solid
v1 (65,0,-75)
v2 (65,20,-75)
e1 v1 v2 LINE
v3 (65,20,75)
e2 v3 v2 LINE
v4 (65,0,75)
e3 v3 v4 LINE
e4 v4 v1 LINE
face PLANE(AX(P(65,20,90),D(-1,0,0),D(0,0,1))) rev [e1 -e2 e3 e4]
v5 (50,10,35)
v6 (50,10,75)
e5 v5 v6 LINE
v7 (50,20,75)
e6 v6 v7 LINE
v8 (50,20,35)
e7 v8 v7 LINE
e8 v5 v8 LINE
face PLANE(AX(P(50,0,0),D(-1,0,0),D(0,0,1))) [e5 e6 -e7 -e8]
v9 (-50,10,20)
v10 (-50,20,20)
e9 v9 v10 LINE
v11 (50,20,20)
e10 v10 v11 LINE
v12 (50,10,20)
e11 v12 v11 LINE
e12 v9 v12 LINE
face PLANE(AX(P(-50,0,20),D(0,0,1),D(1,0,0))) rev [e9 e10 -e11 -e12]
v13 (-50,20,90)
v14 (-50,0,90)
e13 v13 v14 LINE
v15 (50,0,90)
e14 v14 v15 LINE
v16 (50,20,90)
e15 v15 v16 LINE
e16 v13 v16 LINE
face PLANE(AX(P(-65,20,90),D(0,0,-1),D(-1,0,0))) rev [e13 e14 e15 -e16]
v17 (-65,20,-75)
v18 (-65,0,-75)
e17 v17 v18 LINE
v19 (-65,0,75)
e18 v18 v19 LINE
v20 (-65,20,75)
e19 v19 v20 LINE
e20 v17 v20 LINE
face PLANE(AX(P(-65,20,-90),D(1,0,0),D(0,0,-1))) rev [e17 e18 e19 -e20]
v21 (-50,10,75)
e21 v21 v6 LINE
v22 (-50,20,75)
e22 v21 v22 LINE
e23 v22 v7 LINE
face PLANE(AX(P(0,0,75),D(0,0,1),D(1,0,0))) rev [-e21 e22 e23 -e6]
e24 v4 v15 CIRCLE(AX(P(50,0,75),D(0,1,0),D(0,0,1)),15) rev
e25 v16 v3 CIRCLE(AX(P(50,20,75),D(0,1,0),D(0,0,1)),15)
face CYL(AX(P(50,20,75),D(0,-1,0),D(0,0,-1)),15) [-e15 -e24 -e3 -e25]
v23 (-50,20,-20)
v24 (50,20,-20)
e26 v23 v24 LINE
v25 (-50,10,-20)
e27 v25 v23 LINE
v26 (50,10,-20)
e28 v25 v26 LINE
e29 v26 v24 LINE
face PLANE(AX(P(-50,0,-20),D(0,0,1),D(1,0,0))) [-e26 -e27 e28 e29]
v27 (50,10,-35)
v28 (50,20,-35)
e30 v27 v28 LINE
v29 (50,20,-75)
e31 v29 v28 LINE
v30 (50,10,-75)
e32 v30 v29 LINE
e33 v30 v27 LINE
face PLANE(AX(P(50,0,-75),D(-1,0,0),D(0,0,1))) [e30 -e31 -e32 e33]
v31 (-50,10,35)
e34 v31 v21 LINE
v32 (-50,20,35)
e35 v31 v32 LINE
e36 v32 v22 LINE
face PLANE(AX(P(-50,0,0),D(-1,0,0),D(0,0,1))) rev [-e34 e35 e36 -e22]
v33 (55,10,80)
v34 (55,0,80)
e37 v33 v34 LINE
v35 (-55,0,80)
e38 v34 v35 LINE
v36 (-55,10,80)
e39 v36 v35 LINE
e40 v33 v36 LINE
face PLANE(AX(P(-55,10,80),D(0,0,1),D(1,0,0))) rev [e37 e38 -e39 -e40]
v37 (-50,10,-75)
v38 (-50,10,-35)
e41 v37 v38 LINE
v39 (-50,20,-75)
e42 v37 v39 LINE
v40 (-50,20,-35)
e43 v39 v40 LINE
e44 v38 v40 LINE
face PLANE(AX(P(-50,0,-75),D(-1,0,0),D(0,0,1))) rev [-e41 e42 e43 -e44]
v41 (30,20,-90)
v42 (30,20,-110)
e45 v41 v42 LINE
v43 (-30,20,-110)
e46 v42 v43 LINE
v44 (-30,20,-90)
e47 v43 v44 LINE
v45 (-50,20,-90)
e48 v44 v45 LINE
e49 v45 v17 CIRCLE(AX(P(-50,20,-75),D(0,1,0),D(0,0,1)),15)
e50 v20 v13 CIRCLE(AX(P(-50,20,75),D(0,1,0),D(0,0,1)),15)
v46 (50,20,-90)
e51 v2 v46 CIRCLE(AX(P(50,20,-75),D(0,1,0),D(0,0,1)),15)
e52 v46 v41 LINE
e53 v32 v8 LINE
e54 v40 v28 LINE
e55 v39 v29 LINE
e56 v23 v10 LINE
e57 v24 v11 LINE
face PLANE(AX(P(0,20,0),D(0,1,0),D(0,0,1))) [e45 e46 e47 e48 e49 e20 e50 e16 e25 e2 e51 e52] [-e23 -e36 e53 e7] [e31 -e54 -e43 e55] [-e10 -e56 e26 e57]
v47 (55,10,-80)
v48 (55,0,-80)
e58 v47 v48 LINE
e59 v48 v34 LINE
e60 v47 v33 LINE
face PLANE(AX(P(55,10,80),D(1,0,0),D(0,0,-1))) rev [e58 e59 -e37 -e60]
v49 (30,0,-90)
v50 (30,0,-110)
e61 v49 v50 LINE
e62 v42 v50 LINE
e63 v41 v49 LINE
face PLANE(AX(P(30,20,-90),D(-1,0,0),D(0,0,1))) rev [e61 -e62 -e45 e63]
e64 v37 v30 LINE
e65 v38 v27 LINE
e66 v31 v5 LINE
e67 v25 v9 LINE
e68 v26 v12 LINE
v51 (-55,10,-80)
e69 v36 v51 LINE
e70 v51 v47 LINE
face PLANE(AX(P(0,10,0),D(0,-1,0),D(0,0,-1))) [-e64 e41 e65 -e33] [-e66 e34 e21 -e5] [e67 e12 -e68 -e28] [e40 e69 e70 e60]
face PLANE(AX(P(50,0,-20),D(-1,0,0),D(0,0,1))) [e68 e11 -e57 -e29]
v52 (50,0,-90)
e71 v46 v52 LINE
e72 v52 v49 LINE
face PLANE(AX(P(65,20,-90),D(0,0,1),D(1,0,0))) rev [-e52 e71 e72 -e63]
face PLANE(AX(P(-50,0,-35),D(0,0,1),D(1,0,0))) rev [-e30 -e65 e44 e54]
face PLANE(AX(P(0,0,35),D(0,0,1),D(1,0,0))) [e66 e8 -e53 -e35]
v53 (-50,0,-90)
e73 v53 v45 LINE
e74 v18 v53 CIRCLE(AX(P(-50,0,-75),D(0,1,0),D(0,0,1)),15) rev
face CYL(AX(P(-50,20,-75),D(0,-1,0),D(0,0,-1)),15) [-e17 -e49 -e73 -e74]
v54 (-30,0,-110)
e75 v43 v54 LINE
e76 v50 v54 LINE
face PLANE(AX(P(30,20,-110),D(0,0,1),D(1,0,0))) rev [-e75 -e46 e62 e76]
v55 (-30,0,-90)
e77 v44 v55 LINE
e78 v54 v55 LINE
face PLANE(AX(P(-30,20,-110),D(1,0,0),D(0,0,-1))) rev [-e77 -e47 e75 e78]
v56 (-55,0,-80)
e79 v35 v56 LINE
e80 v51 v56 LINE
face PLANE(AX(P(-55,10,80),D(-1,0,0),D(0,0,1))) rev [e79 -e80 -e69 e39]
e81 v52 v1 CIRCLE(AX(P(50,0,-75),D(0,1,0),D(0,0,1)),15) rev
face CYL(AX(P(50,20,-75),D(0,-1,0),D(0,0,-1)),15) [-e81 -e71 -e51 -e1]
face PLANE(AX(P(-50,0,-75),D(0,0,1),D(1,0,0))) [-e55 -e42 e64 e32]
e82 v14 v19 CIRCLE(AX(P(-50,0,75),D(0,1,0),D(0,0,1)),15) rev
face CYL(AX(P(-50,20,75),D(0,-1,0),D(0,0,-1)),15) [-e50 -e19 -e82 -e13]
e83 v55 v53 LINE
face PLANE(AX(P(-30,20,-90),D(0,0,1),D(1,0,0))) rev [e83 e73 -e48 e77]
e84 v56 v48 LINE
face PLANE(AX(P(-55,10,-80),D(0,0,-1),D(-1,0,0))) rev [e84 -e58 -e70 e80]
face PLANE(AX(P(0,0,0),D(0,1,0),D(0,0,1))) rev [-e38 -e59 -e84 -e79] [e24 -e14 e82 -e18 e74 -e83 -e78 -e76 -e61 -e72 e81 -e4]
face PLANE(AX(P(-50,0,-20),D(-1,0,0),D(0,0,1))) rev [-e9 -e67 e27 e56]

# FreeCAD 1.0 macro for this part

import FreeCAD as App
import Part
import Sketcher
from FreeCAD import Vector
Q = App.Units.Quantity


def edges_at(feature, points):
    """Names of the edges that pass closest to the given points."""
    edges = feature.Shape.Edges
    near = lambda p: min(range(len(edges)), key=lambda i: edges[i].distToShape(Part.Vertex(*p))[0])
    return sorted({f"Edge{near(p) + 1}" for p in points})


def add_polygon(sketch, points):
    """Adds a closed chain of lines whose ends are joined by coincident constraints."""
    first, n = sketch.GeometryCount, len(points)
    for a, b in zip(points, points[1:] + points[:1]):
        sketch.addGeometry(Part.LineSegment(App.Vector(*a, 0), App.Vector(*b, 0)), False)
    for i in range(n):
        sketch.addConstraint(Sketcher.Constraint("Coincident", first + i, 2, first + (i + 1) % n, 1))

doc = App.newDocument("Part")
body = doc.addObject("PartDesign::Body", "Body")

sketch1 = doc.addObject("Sketcher::SketchObject", "Sketch")
body.addObject(sketch1)
sketch1.AttachmentSupport = (doc.XZ_Plane, [""])
sketch1.MapMode = "FlatFace"
add_polygon(sketch1, [(-65, -90), (-65, 90), (65, 90), (65, -90), (30, -90), (30, -110), (-30, -110), (-30, -90)])
sketch1.addConstraint([
    Sketcher.Constraint("Vertical", 0),
    Sketcher.Constraint("Horizontal", 1),
    Sketcher.Constraint("Vertical", 2),
    Sketcher.Constraint("Horizontal", 3),
    Sketcher.Constraint("Vertical", 4),
    Sketcher.Constraint("Horizontal", 5),
    Sketcher.Constraint("Vertical", 6),
    Sketcher.Constraint("Horizontal", 7),
    Sketcher.Constraint("Symmetric", 0, 2, 2, 2, -1, 1),
    Sketcher.Constraint("Symmetric", 3, 2, 6, 2, -2),
    Sketcher.Constraint("DistanceX", 1, 1, 1, 2, Q("130 mm")),
    Sketcher.Constraint("DistanceX", 3, 2, 3, 1, Q("35 mm")),
    Sketcher.Constraint("DistanceY", 0, 1, 0, 2, Q("180 mm")),
    Sketcher.Constraint("DistanceY", 4, 2, 4, 1, Q("20 mm")),
])
pad1 = doc.addObject("PartDesign::Pad", "Pad")
body.addObject(pad1)
pad1.Profile = sketch1
pad1.Length = 20
pad1.Reversed = True

sketch2 = doc.addObject("Sketcher::SketchObject", "Sketch001")
body.addObject(sketch2)
sketch2.AttachmentSupport = (doc.XZ_Plane, [""])
sketch2.MapMode = "FlatFace"
sketch2.AttachmentOffset = App.Placement(Vector(0, 0, -20), App.Rotation())
add_polygon(sketch2, [(-50, 35), (-50, 75), (50, 75), (50, 35)])
add_polygon(sketch2, [(-50, -75), (-50, -35), (50, -35), (50, -75)])
add_polygon(sketch2, [(-50, -20), (-50, 20), (50, 20), (50, -20)])
sketch2.addConstraint([
    Sketcher.Constraint("Vertical", 0),
    Sketcher.Constraint("Horizontal", 1),
    Sketcher.Constraint("Vertical", 2),
    Sketcher.Constraint("Horizontal", 3),
    Sketcher.Constraint("Vertical", 4),
    Sketcher.Constraint("Horizontal", 5),
    Sketcher.Constraint("Vertical", 6),
    Sketcher.Constraint("Horizontal", 7),
    Sketcher.Constraint("Vertical", 8),
    Sketcher.Constraint("Horizontal", 9),
    Sketcher.Constraint("Vertical", 10),
    Sketcher.Constraint("Horizontal", 11),
    Sketcher.Constraint("Symmetric", 2, 2, 4, 2, -1, 1),
    Sketcher.Constraint("Symmetric", 0, 2, 6, 2, -1, 1),
    Sketcher.Constraint("Symmetric", 8, 2, 10, 2, -1, 1),
    Sketcher.Constraint("Vertical", 3, 2, 4, 2),
    Sketcher.Constraint("Vertical", 7, 2, 8, 2),
    Sketcher.Constraint("Equal", 6, 8),
    Sketcher.Constraint("DistanceX", 1, 1, 1, 2, Q("100 mm")),
    Sketcher.Constraint("DistanceY", 0, 1, 0, 2, Q("40 mm")),
    Sketcher.Constraint("DistanceY", -1, 1, 0, 2, Q("75 mm")),
])
pocket1 = doc.addObject("PartDesign::Pocket", "Pocket")
body.addObject(pocket1)
pocket1.Profile = sketch2
pocket1.Length = 20
pocket1.Reversed = True
doc.recompute()

fillet = doc.addObject("PartDesign::Fillet", "Fillet")
body.addObject(fillet)
fillet.Base = (pocket1, edges_at(pocket1, [
    (65, 10, -90),
    (65, 10, 90),
    (-65, 10, 90),
    (-65, 10, -90),
]))
fillet.Radius = 15

sketch3 = doc.addObject("Sketcher::SketchObject", "Sketch002")
body.addObject(sketch3)
sketch3.AttachmentSupport = (doc.XZ_Plane, [""])
sketch3.MapMode = "FlatFace"
add_polygon(sketch3, [(-55, 80), (-55, -80), (55, -80), (55, 80)])
sketch3.addConstraint([
    Sketcher.Constraint("Vertical", 0),
    Sketcher.Constraint("Horizontal", 1),
    Sketcher.Constraint("Vertical", 2),
    Sketcher.Constraint("Horizontal", 3),
    Sketcher.Constraint("Symmetric", 0, 2, 2, 2, -1, 1),
    Sketcher.Constraint("DistanceX", 1, 1, 1, 2, Q("110 mm")),
    Sketcher.Constraint("DistanceY", 0, 2, 0, 1, Q("160 mm")),
])
pocket2 = doc.addObject("PartDesign::Pocket", "Pocket001")
body.addObject(pocket2)
pocket2.Profile = sketch3
pocket2.Length = 10

doc.recompute()
